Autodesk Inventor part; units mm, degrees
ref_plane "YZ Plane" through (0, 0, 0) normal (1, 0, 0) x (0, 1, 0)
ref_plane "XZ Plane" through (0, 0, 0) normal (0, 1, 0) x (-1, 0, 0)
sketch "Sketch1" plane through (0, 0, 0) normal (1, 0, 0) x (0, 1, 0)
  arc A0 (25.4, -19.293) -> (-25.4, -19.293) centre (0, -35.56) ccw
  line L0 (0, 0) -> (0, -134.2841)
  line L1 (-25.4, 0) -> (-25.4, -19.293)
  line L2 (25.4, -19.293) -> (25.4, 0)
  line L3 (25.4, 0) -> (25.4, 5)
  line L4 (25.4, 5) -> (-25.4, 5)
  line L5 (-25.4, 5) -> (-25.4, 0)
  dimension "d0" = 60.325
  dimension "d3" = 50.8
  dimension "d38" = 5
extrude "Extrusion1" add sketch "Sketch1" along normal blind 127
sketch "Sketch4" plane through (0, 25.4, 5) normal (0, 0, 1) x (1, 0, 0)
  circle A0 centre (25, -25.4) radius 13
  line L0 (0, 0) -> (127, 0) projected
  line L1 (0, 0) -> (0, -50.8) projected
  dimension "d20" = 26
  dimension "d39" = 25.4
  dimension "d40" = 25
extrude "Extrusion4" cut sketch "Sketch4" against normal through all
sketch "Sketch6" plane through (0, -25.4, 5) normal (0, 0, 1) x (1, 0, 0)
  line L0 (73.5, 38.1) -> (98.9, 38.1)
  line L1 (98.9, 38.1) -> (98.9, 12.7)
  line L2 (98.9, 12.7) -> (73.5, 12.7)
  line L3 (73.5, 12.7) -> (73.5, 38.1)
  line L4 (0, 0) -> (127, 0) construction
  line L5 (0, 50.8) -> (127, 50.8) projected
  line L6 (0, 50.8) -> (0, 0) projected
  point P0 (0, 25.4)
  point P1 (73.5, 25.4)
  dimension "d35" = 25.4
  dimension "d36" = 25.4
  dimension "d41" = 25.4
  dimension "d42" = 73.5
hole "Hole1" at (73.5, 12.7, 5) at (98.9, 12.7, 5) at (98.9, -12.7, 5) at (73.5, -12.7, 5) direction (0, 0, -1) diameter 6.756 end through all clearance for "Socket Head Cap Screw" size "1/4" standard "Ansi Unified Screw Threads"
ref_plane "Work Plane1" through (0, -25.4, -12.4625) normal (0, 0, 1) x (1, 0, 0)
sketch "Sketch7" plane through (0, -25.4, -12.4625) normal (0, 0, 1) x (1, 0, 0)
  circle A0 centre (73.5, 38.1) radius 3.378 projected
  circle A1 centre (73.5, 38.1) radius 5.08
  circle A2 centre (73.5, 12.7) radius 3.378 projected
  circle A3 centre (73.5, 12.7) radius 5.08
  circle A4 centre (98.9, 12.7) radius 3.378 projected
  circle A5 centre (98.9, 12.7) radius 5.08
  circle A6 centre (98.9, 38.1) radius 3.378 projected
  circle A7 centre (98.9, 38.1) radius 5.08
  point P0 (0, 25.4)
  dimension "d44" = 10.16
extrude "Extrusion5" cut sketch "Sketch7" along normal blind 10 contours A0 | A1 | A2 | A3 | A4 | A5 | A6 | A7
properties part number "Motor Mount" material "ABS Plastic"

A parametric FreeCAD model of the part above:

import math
import FreeCAD as App
import Part
import Sketcher
Q = App.Units.Quantity

doc = App.newDocument("Part")
params = doc.addObject("Spreadsheet::Sheet", "Params")
for row, (alias, value) in enumerate([
    ("sketch1_width", "2 in"),
    ("sketch1_radius", "1.1875 in"),
    ("pad1_length", "5 in"),
    ("hole_diameter", "6.756 mm"),
    ("sketch4_diameter", "0.4 in"),
    ("pocket2_length", "0.3937008 in"),
], start=1):
    params.set(f"A{row}", alias)
    params.set(f"B{row}", "=" + value)
    params.setAlias(f"B{row}", alias)

body = doc.addObject("PartDesign::Body", "Body")

# Sketch on YZ plane
sketch1 = body.newObject("Sketcher::SketchObject", "Sketch")
sketch1.AttachmentSupport = (doc.getObject("YZ_Plane"), [""])
sketch1.MapMode = "FlatFace"
sketch1.addGeometry(Part.ArcOfCircle(Part.Circle(App.Vector(0, -36, 0), App.Vector(0, 0, 1), 30), math.radians(33), math.radians(147)), False)
sketch1.addGeometry(Part.LineSegment(App.Vector(25, -19, 0), App.Vector(25, 5, 0)), False)
sketch1.addGeometry(Part.LineSegment(App.Vector(25, 5, 0), App.Vector(-25, 5, 0)), False)
sketch1.addGeometry(Part.LineSegment(App.Vector(-25, 5, 0), App.Vector(-25, -19, 0)), False)
sketch1.addConstraint(Sketcher.Constraint("Coincident", 0, 1, 1, 1))
sketch1.addConstraint(Sketcher.Constraint("Coincident", 1, 2, 2, 1))
sketch1.addConstraint(Sketcher.Constraint("Coincident", 2, 2, 3, 1))
sketch1.addConstraint(Sketcher.Constraint("Coincident", 3, 2, 0, 2))
sketch1.addConstraint(Sketcher.Constraint("Vertical", 1))
sketch1.addConstraint(Sketcher.Constraint("Horizontal", 2))
sketch1.addConstraint(Sketcher.Constraint("Vertical", 3))
sketch1.addConstraint(Sketcher.Constraint("Symmetric", 0, 1, 3, 2, -2))
sketch1.addConstraint(Sketcher.Constraint("DistanceX", 2, 2, 2, 1, Q("2 in")))
sketch1.addConstraint(Sketcher.Constraint("Radius", 0, Q("1.1875 in")))
sketch1.addConstraint(Sketcher.Constraint("DistanceY", 0, 3, -1, 1, Q("1.4 in")))
sketch1.addConstraint(Sketcher.Constraint("DistanceY", -1, 1, 1, 2, 5.0))
sketch1.setExpression("Constraints[8]", "Params.sketch1_width")
sketch1.setExpression("Constraints[9]", "Params.sketch1_radius")
pad1 = body.newObject("PartDesign::Pad", "Pad")
pad1.Profile = sketch1
pad1.setExpression("Length", "Params.pad1_length")

# Sketch on XY plane
sketch2 = body.newObject("Sketcher::SketchObject", "Sketch001")
sketch2.AttachmentSupport = (doc.getObject("XY_Plane"), [""])
sketch2.MapMode = "FlatFace"
sketch2.AttachmentOffset = App.Placement(App.Vector(0, 0, 5), App.Rotation())
sketch2.addGeometry(Part.Circle(App.Vector(25, 0, 0), App.Vector(0, 0, 1), 13), False)
sketch2.addConstraint(Sketcher.Constraint("PointOnObject", 0, 3, -1))
sketch2.addConstraint(Sketcher.Constraint("Diameter", 0, 26.0))
sketch2.addConstraint(Sketcher.Constraint("DistanceX", -1, 1, 0, 3, 25.0))
pocket1 = body.newObject("PartDesign::Pocket", "Pocket")
pocket1.Profile = sketch2
pocket1.Type = "ThroughAll"

# Sketch on XY plane
sketch3 = body.newObject("Sketcher::SketchObject", "Sketch002")
sketch3.AttachmentSupport = (doc.getObject("XY_Plane"), [""])
sketch3.MapMode = "FlatFace"
sketch3.AttachmentOffset = App.Placement(App.Vector(0, 0, 5), App.Rotation())
sketch3.addGeometry(Part.Circle(App.Vector(73.5, 12.7, 0), App.Vector(0, 0, 1), 3.4), False)
sketch3.addGeometry(Part.Circle(App.Vector(98.9, 12.7, 0), App.Vector(0, 0, 1), 3.4), False)
sketch3.addGeometry(Part.Circle(App.Vector(98.9, -12.7, 0), App.Vector(0, 0, 1), 3.4), False)
sketch3.addGeometry(Part.Circle(App.Vector(73.5, -12.7, 0), App.Vector(0, 0, 1), 3.4), False)
sketch3.addConstraint(Sketcher.Constraint("Equal", 0, 1))
sketch3.addConstraint(Sketcher.Constraint("Equal", 1, 2))
sketch3.addConstraint(Sketcher.Constraint("Equal", 2, 3))
sketch3.addConstraint(Sketcher.Constraint("Symmetric", 1, 3, 2, 3, -1))
sketch3.addConstraint(Sketcher.Constraint("Symmetric", 0, 3, 3, 3, -1))
sketch3.addConstraint(Sketcher.Constraint("Horizontal", 0, 3, 1, 3))
sketch3.addConstraint(Sketcher.Constraint("DistanceX", 0, 3, 1, 3, Q("1 in")))
sketch3.addConstraint(Sketcher.Constraint("DistanceY", 2, 3, 1, 3, Q("1 in")))
sketch3.addConstraint(Sketcher.Constraint("Diameter", 0, 6.756))
sketch3.addConstraint(Sketcher.Constraint("DistanceX", -1, 1, 0, 3, Q("2.8937 in")))
doc.recompute()
hole = body.newObject("PartDesign::Hole", "Hole")
hole.Profile = sketch3
hole.ThreadType = "None"
hole.setExpression("Diameter", "Params.hole_diameter")
hole.DepthType = "ThroughAll"

# Sketch on XY plane
sketch4 = body.newObject("Sketcher::SketchObject", "Sketch003")
sketch4.AttachmentSupport = (doc.getObject("XY_Plane"), [""])
sketch4.MapMode = "FlatFace"
sketch4.AttachmentOffset = App.Placement(App.Vector(0, 0, -12.4625), App.Rotation())
sketch4.addGeometry(Part.Circle(App.Vector(74, 13, 0), App.Vector(0, 0, 1), 5), False)
sketch4.addGeometry(Part.Circle(App.Vector(74, -13, 0), App.Vector(0, 0, 1), 5), False)
sketch4.addGeometry(Part.Circle(App.Vector(99, -13, 0), App.Vector(0, 0, 1), 5), False)
sketch4.addGeometry(Part.Circle(App.Vector(99, 13, 0), App.Vector(0, 0, 1), 5), False)
sketch4.addConstraint(Sketcher.Constraint("Equal", 0, 1))
sketch4.addConstraint(Sketcher.Constraint("Equal", 1, 2))
sketch4.addConstraint(Sketcher.Constraint("Equal", 2, 3))
sketch4.addConstraint(Sketcher.Constraint("Symmetric", 0, 3, 1, 3, -1))
sketch4.addConstraint(Sketcher.Constraint("Symmetric", 2, 3, 3, 3, -1))
sketch4.addConstraint(Sketcher.Constraint("Horizontal", 1, 3, 2, 3))
sketch4.addConstraint(Sketcher.Constraint("Diameter", 0, Q("0.4 in")))
sketch4.addConstraint(Sketcher.Constraint("DistanceY", 1, 3, 0, 3, Q("1 in")))
sketch4.addConstraint(Sketcher.Constraint("DistanceX", 1, 3, 2, 3, Q("1 in")))
sketch4.addConstraint(Sketcher.Constraint("DistanceX", -1, 1, 0, 3, Q("2.8937 in")))
sketch4.setExpression("Constraints[6]", "Params.sketch4_diameter")
pocket2 = body.newObject("PartDesign::Pocket", "Pocket001")
pocket2.Profile = sketch4
pocket2.setExpression("Length", "Params.pocket2_length")
pocket2.Reversed = True

doc.recompute()
